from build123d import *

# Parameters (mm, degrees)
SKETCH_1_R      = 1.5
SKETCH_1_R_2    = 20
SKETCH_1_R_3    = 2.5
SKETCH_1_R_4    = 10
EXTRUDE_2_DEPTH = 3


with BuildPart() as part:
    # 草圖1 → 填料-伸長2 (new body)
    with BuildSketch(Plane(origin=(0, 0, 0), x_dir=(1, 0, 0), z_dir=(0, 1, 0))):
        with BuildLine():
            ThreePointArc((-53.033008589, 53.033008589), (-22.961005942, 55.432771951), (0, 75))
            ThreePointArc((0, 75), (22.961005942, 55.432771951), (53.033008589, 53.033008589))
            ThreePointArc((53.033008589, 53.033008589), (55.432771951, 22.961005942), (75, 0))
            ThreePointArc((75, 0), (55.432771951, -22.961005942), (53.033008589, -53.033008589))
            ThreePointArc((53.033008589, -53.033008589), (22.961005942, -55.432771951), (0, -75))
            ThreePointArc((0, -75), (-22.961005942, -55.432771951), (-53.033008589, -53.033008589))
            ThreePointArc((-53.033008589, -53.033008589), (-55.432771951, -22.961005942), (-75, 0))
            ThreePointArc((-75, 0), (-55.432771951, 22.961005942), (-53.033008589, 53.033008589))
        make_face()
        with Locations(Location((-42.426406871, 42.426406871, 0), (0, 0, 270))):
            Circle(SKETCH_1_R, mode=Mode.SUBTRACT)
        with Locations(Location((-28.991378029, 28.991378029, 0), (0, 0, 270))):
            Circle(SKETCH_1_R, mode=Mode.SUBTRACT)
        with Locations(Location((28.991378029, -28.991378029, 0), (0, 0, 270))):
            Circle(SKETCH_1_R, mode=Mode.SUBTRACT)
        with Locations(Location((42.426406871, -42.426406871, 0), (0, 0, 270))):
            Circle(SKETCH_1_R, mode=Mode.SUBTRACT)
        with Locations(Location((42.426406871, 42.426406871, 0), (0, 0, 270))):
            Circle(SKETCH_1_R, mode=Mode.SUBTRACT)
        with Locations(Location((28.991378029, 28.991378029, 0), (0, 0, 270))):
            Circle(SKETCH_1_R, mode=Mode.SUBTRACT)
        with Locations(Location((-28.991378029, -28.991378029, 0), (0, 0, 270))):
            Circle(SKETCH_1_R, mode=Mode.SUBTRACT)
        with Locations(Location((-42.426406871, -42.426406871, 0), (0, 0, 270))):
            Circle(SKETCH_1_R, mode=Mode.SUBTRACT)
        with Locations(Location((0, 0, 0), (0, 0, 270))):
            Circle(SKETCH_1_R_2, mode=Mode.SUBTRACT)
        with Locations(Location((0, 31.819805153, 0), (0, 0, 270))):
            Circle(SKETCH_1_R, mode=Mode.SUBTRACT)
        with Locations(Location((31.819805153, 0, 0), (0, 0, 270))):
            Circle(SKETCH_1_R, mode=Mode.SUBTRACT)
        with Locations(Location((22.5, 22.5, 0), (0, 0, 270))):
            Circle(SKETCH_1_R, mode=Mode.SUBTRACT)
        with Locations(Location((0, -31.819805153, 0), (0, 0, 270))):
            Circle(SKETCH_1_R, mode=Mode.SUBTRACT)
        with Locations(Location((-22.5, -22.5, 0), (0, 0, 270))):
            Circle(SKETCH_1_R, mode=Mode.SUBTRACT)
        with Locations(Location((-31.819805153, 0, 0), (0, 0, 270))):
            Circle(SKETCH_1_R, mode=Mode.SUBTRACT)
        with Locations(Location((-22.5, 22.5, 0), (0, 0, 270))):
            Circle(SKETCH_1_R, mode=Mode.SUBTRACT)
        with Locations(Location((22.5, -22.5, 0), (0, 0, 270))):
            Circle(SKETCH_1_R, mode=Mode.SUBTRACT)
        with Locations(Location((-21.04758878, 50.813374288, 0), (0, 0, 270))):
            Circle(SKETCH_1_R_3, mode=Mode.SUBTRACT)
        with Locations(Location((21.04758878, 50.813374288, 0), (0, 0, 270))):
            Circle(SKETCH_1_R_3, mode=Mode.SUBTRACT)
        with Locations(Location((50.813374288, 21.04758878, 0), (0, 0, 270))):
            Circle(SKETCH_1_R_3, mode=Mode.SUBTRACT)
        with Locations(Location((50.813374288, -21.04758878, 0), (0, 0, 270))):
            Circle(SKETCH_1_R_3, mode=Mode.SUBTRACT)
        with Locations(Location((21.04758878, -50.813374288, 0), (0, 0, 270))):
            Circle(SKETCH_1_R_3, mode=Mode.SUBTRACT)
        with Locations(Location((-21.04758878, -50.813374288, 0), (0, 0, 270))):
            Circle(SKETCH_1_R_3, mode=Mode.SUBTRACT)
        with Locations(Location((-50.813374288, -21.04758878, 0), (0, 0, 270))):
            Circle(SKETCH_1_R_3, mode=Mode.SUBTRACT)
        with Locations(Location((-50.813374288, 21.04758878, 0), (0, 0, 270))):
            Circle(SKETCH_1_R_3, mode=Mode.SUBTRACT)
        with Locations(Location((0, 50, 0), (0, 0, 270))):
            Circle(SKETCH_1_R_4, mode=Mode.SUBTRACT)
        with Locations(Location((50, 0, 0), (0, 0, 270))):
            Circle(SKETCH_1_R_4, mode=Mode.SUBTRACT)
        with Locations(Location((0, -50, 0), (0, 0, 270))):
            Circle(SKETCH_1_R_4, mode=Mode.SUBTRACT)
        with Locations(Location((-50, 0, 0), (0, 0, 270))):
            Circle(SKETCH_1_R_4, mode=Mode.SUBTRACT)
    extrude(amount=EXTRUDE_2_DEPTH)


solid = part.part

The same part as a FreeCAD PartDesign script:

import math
import FreeCAD as App
import Part
import Sketcher
Q = App.Units.Quantity

doc = App.newDocument("Part")
body = doc.addObject("PartDesign::Body", "Body")

sketch1 = body.newObject("Sketcher::SketchObject", "Sketch")
sketch1.AttachmentSupport = (doc.getObject("XZ_Plane"), [""])
sketch1.MapMode = "FlatFace"
sketch1.addGeometry(Part.ArcOfCircle(Part.Circle(App.Vector(-41.703631, -100.681472, 0), App.Vector(0, 0, 1), 48.97684), math.radians(31.625136), math.radians(103.374864)), False)
sketch1.addGeometry(Part.ArcOfCircle(Part.Circle(App.Vector(-100.681472, -41.703631, 0), App.Vector(0, 0, 1), 48.97684), math.radians(-13.374864), math.radians(58.374864)), False)
sketch1.addGeometry(Part.ArcOfCircle(Part.Circle(App.Vector(-100.681472, 41.703631, 0), App.Vector(0, 0, 1), 48.97684), math.radians(-58.374864), math.radians(13.374864)), False)
sketch1.addGeometry(Part.ArcOfCircle(Part.Circle(App.Vector(-41.703631, 100.681472, 0), App.Vector(0, 0, 1), 48.97684), math.radians(-103.374864), math.radians(-31.625136)), False)
sketch1.addGeometry(Part.ArcOfCircle(Part.Circle(App.Vector(41.703631, 100.681472, 0), App.Vector(0, 0, 1), 48.97684), math.radians(-148.374864), math.radians(-76.625136)), False)
sketch1.addGeometry(Part.ArcOfCircle(Part.Circle(App.Vector(100.681472, 41.703631, 0), App.Vector(0, 0, 1), 48.97684), math.radians(166.625136), math.radians(238.374864)), False)
sketch1.addGeometry(Part.ArcOfCircle(Part.Circle(App.Vector(100.681472, -41.703631, 0), App.Vector(0, 0, 1), 48.97684), math.radians(121.625136), math.radians(193.374864)), False)
sketch1.addGeometry(Part.ArcOfCircle(Part.Circle(App.Vector(41.703631, -100.681472, 0), App.Vector(0, 0, 1), 48.97684), math.radians(76.625136), math.radians(148.374864)), False)
sketch1.addGeometry(Part.Circle(App.Vector(42.426407, 42.426407, 0), App.Vector(0, 0, 1), 1.5), False)
sketch1.addGeometry(Part.Circle(App.Vector(21.047589, 50.813374, 0), App.Vector(0, 0, 1), 2.5), False)
sketch1.addGeometry(Part.Circle(App.Vector(50.813374, 21.047589, 0), App.Vector(0, 0, 1), 2.5), False)
sketch1.addGeometry(Part.Circle(App.Vector(28.991378, 28.991378, 0), App.Vector(0, 0, 1), 1.5), False)
sketch1.addGeometry(Part.Circle(App.Vector(22.5, 22.5, 0), App.Vector(0, 0, 1), 1.5), False)
sketch1.addGeometry(Part.Circle(App.Vector(0, 50, 0), App.Vector(0, 0, 1), 10), False)
sketch1.addGeometry(Part.Circle(App.Vector(-21.047589, 50.813374, 0), App.Vector(0, 0, 1), 2.5), False)
sketch1.addGeometry(Part.Circle(App.Vector(0, 31.819805, 0), App.Vector(0, 0, 1), 1.5), False)
sketch1.addGeometry(Part.Circle(App.Vector(-42.426407, 42.426407, 0), App.Vector(0, 0, 1), 1.5), False)
sketch1.addGeometry(Part.Circle(App.Vector(-28.991378, 28.991378, 0), App.Vector(0, 0, 1), 1.5), False)
sketch1.addGeometry(Part.Circle(App.Vector(-22.5, 22.5, 0), App.Vector(0, 0, 1), 1.5), False)
sketch1.addGeometry(Part.Circle(App.Vector(-50.813374, 21.047589, 0), App.Vector(0, 0, 1), 2.5), False)
sketch1.addGeometry(Part.Circle(App.Vector(50, 0, 0), App.Vector(0, 0, 1), 10), False)
sketch1.addGeometry(Part.Circle(App.Vector(31.819805, 0, 0), App.Vector(0, 0, 1), 1.5), False)
sketch1.addGeometry(Part.Circle(App.Vector(50.813374, -21.047589, 0), App.Vector(0, 0, 1), 2.5), False)
sketch1.addGeometry(Part.Circle(App.Vector(28.991378, -28.991378, 0), App.Vector(0, 0, 1), 1.5), False)
sketch1.addGeometry(Part.Circle(App.Vector(22.5, -22.5, 0), App.Vector(0, 0, 1), 1.5), False)
sketch1.addGeometry(Part.Circle(App.Vector(42.426407, -42.426407, 0), App.Vector(0, 0, 1), 1.5), False)
sketch1.addGeometry(Part.Circle(App.Vector(21.047589, -50.813374, 0), App.Vector(0, 0, 1), 2.5), False)
sketch1.addGeometry(Part.Circle(App.Vector(0, 0, 0), App.Vector(0, 0, 1), 20), False)
sketch1.addGeometry(Part.Circle(App.Vector(-22.5, -22.5, 0), App.Vector(0, 0, 1), 1.5), False)
sketch1.addGeometry(Part.Circle(App.Vector(-28.991378, -28.991378, 0), App.Vector(0, 0, 1), 1.5), False)
sketch1.addGeometry(Part.Circle(App.Vector(-31.819805, 0, 0), App.Vector(0, 0, 1), 1.5), False)
sketch1.addGeometry(Part.Circle(App.Vector(-50, 0, 0), App.Vector(0, 0, 1), 10), False)
sketch1.addGeometry(Part.Circle(App.Vector(-50.813374, -21.047589, 0), App.Vector(0, 0, 1), 2.5), False)
sketch1.addGeometry(Part.Circle(App.Vector(0, -31.819805, 0), App.Vector(0, 0, 1), 1.5), False)
sketch1.addGeometry(Part.Circle(App.Vector(0, -50, 0), App.Vector(0, 0, 1), 10), False)
sketch1.addGeometry(Part.Circle(App.Vector(-21.047589, -50.813374, 0), App.Vector(0, 0, 1), 2.5), False)
sketch1.addGeometry(Part.Circle(App.Vector(-42.426407, -42.426407, 0), App.Vector(0, 0, 1), 1.5), False)
sketch1.addConstraint(Sketcher.Constraint("Coincident", 0, 2, 1, 1))
sketch1.addConstraint(Sketcher.Constraint("Coincident", 1, 2, 2, 1))
sketch1.addConstraint(Sketcher.Constraint("Coincident", 2, 2, 3, 1))
sketch1.addConstraint(Sketcher.Constraint("Coincident", 3, 2, 4, 1))
sketch1.addConstraint(Sketcher.Constraint("Coincident", 4, 2, 5, 1))
sketch1.addConstraint(Sketcher.Constraint("Coincident", 5, 2, 6, 1))
sketch1.addConstraint(Sketcher.Constraint("Coincident", 6, 2, 7, 1))
sketch1.addConstraint(Sketcher.Constraint("Coincident", 7, 2, 0, 1))
sketch1.addConstraint(Sketcher.Constraint("Coincident", 27, 3, -1, 1))
sketch1.addConstraint(Sketcher.Constraint("Equal", 0, 1))
sketch1.addConstraint(Sketcher.Constraint("Equal", 1, 2))
sketch1.addConstraint(Sketcher.Constraint("Equal", 2, 3))
sketch1.addConstraint(Sketcher.Constraint("Equal", 3, 4))
sketch1.addConstraint(Sketcher.Constraint("Equal", 4, 5))
sketch1.addConstraint(Sketcher.Constraint("Equal", 5, 6))
sketch1.addConstraint(Sketcher.Constraint("Equal", 6, 7))
sketch1.addConstraint(Sketcher.Constraint("Equal", 9, 10))
sketch1.addConstraint(Sketcher.Constraint("Equal", 8, 11))
sketch1.addConstraint(Sketcher.Constraint("Equal", 11, 12))
sketch1.addConstraint(Sketcher.Constraint("Equal", 10, 14))
sketch1.addConstraint(Sketcher.Constraint("Equal", 12, 15))
sketch1.addConstraint(Sketcher.Constraint("Equal", 15, 16))
sketch1.addConstraint(Sketcher.Constraint("Equal", 16, 17))
sketch1.addConstraint(Sketcher.Constraint("Equal", 17, 18))
sketch1.addConstraint(Sketcher.Constraint("Equal", 14, 19))
sketch1.addConstraint(Sketcher.Constraint("Equal", 13, 20))
sketch1.addConstraint(Sketcher.Constraint("Equal", 18, 21))
sketch1.addConstraint(Sketcher.Constraint("Equal", 19, 22))
sketch1.addConstraint(Sketcher.Constraint("Equal", 21, 23))
sketch1.addConstraint(Sketcher.Constraint("Equal", 23, 24))
sketch1.addConstraint(Sketcher.Constraint("Equal", 24, 25))
sketch1.addConstraint(Sketcher.Constraint("Equal", 22, 26))
sketch1.addConstraint(Sketcher.Constraint("Equal", 25, 28))
sketch1.addConstraint(Sketcher.Constraint("Equal", 28, 29))
sketch1.addConstraint(Sketcher.Constraint("Equal", 29, 30))
sketch1.addConstraint(Sketcher.Constraint("Equal", 20, 31))
sketch1.addConstraint(Sketcher.Constraint("Equal", 26, 32))
sketch1.addConstraint(Sketcher.Constraint("Equal", 30, 33))
sketch1.addConstraint(Sketcher.Constraint("Equal", 31, 34))
sketch1.addConstraint(Sketcher.Constraint("Equal", 32, 35))
sketch1.addConstraint(Sketcher.Constraint("Equal", 33, 36))
sketch1.addConstraint(Sketcher.Constraint("Symmetric", 0, 3, 4, 3, -1, 1))
sketch1.addConstraint(Sketcher.Constraint("Symmetric", 1, 3, 5, 3, -1, 1))
sketch1.addConstraint(Sketcher.Constraint("Symmetric", 2, 3, 6, 3, -1, 1))
sketch1.addConstraint(Sketcher.Constraint("Symmetric", 3, 3, 7, 3, -1, 1))
sketch1.addConstraint(Sketcher.Constraint("Symmetric", 19, 3, 22, 3, -1, 1))
sketch1.addConstraint(Sketcher.Constraint("Symmetric", 17, 3, 23, 3, -1, 1))
sketch1.addConstraint(Sketcher.Constraint("Symmetric", 18, 3, 24, 3, -1, 1))
sketch1.addConstraint(Sketcher.Constraint("Symmetric", 16, 3, 25, 3, -1, 1))
sketch1.addConstraint(Sketcher.Constraint("Symmetric", 14, 3, 26, 3, -1, 1))
sketch1.addConstraint(Sketcher.Constraint("Symmetric", 12, 3, 28, 3, -1, 1))
sketch1.addConstraint(Sketcher.Constraint("Symmetric", 11, 3, 29, 3, -1, 1))
sketch1.addConstraint(Sketcher.Constraint("Symmetric", 21, 3, 30, 3, -1, 1))
sketch1.addConstraint(Sketcher.Constraint("Symmetric", 20, 3, 31, 3, -1, 1))
sketch1.addConstraint(Sketcher.Constraint("Symmetric", 10, 3, 32, 3, -1, 1))
sketch1.addConstraint(Sketcher.Constraint("Symmetric", 15, 3, 33, 3, -1, 1))
sketch1.addConstraint(Sketcher.Constraint("Symmetric", 13, 3, 34, 3, -1, 1))
sketch1.addConstraint(Sketcher.Constraint("Symmetric", 9, 3, 35, 3, -1, 1))
sketch1.addConstraint(Sketcher.Constraint("Symmetric", 8, 3, 36, 3, -1, 1))
sketch1.addConstraint(Sketcher.Constraint("Symmetric", 3, 3, 4, 3, -2))
sketch1.addConstraint(Sketcher.Constraint("Symmetric", 2, 3, 5, 3, -2))
sketch1.addConstraint(Sketcher.Constraint("Symmetric", 9, 3, 14, 3, -2))
sketch1.addConstraint(Sketcher.Constraint("Symmetric", 8, 3, 16, 3, -2))
sketch1.addConstraint(Sketcher.Constraint("Symmetric", 11, 3, 17, 3, -2))
sketch1.addConstraint(Sketcher.Constraint("Symmetric", 12, 3, 18, 3, -2))
sketch1.addConstraint(Sketcher.Constraint("Symmetric", 10, 3, 19, 3, -2))
sketch1.addConstraint(Sketcher.Constraint("PointOnObject", 13, 3, -2))
sketch1.addConstraint(Sketcher.Constraint("PointOnObject", 15, 3, -2))
sketch1.addConstraint(Sketcher.Constraint("PointOnObject", 20, 3, -1))
sketch1.addConstraint(Sketcher.Constraint("PointOnObject", 21, 3, -1))
sketch1.addConstraint(Sketcher.Constraint("Diameter", 8, Q("3 mm")))
sketch1.addConstraint(Sketcher.Constraint("Diameter", 9, Q("5 mm")))
sketch1.addConstraint(Sketcher.Constraint("Diameter", 13, Q("20 mm")))
sketch1.addConstraint(Sketcher.Constraint("Diameter", 27, Q("40 mm")))
sketch1.addConstraint(Sketcher.Constraint("DistanceY", -1, 1, 13, 3, Q("50 mm")))
sketch1.addConstraint(Sketcher.Constraint("DistanceX", -1, 1, 20, 3, Q("50 mm")))
sketch1.addConstraint(Sketcher.Constraint("DistanceX", 1, 2, -1, 1, Q("75 mm")))
sketch1.addConstraint(Sketcher.Constraint("DistanceY", -1, 1, 3, 2, Q("75 mm")))
sketch1.addConstraint(Sketcher.Constraint("DistanceY", 24, 3, 12, 3, Q("45 mm")))
sketch1.addConstraint(Sketcher.Constraint("DistanceX", 28, 3, 24, 3, Q("45 mm")))
sketch1.addConstraint(Sketcher.Constraint("Radius", 0, Q("48.97684 mm")))
sketch1.addConstraint(Sketcher.Constraint("DistanceY", 15, 3, 16, 3, Q("10.606602 mm")))
sketch1.addConstraint(Sketcher.Constraint("DistanceX", 21, 3, 8, 3, Q("10.606602 mm")))
sketch1.addConstraint(Sketcher.Constraint("DistanceX", 0, 2, 36, 3, Q("10.606602 mm")))
sketch1.addConstraint(Sketcher.Constraint("DistanceY", 0, 2, 36, 3, Q("10.606602 mm")))
sketch1.addConstraint(Sketcher.Constraint("DistanceX", 0, 3, -1, 1, Q("41.703631 mm")))
sketch1.addConstraint(Sketcher.Constraint("DistanceY", 1, 3, -1, 1, Q("41.703631 mm")))
sketch1.addConstraint(Sketcher.Constraint("DistanceX", -1, 1, 9, 3, Q("21.047589 mm")))
sketch1.addConstraint(Sketcher.Constraint("DistanceY", -1, 1, 10, 3, Q("21.047589 mm")))
sketch1.addConstraint(Sketcher.Constraint("DistanceX", -1, 1, 11, 3, Q("28.991378 mm")))
sketch1.addConstraint(Sketcher.Constraint("DistanceY", -1, 1, 11, 3, Q("28.991378 mm")))
sketch1.addConstraint(Sketcher.Constraint("DistanceY", 15, 3, 9, 3, Q("18.993569 mm")))
sketch1.addConstraint(Sketcher.Constraint("DistanceX", 21, 3, 10, 3, Q("18.993569 mm")))
pad1 = body.newObject("PartDesign::Pad", "Pad")
pad1.Profile = sketch1
pad1.Length = 3
pad1.Reversed = True

doc.recompute()
